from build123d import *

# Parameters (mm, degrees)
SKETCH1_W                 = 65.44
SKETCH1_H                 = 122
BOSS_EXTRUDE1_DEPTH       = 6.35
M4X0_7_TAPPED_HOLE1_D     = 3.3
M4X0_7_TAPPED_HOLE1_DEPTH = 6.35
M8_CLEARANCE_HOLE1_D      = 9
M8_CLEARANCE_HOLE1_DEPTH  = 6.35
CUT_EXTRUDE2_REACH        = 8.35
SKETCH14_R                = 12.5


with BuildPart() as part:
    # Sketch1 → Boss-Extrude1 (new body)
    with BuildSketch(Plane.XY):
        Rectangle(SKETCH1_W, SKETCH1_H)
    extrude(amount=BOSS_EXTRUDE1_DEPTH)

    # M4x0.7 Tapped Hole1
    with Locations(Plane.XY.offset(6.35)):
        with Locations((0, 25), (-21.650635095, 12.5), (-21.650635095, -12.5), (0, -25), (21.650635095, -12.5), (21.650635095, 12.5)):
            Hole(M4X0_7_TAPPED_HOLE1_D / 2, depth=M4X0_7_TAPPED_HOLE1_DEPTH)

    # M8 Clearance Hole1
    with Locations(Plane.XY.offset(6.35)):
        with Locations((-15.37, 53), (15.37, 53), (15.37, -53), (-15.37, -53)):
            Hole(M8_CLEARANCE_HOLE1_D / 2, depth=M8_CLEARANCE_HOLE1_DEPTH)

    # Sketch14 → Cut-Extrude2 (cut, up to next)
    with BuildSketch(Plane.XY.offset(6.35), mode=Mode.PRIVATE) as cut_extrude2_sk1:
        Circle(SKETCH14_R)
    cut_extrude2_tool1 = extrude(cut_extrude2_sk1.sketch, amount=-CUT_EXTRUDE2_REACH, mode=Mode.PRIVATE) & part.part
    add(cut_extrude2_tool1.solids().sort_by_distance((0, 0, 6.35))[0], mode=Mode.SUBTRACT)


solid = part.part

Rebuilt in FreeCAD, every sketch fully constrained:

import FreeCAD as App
import Part
import Sketcher


def add_polygon(sketch, points):
    """Adds a closed chain of lines whose ends are joined by coincident constraints."""
    first, n = sketch.GeometryCount, len(points)
    for a, b in zip(points, points[1:] + points[:1]):
        sketch.addGeometry(Part.LineSegment(App.Vector(*a, 0), App.Vector(*b, 0)), False)
    for i in range(n):
        sketch.addConstraint(Sketcher.Constraint("Coincident", first + i, 2, first + (i + 1) % n, 1))

doc = App.newDocument("Part")
params = doc.addObject("Spreadsheet::Sheet", "Params")
for row, (alias, value) in enumerate([
    ("sketch1_height", "122 mm"),
    ("sketch1_width", "65.44 mm"),
    ("pad1_length", "6.35 mm"),
    ("sketch2_diameter", "3.3 mm"),
    ("hole_diameter", "3.3 mm"),
    ("hole_depth", "6.35 mm"),
    ("sketch3_diameter", "9 mm"),
    ("hole2_diameter", "9 mm"),
    ("hole2_depth", "6.35 mm"),
    ("sketch4_diameter", "25 mm"),
], start=1):
    params.set(f"A{row}", alias)
    params.set(f"B{row}", "=" + value)
    params.setAlias(f"B{row}", alias)

body = doc.addObject("PartDesign::Body", "Body")

# Sketch on XY plane
sketch1 = body.newObject("Sketcher::SketchObject", "Sketch")
sketch1.AttachmentSupport = (doc.getObject("XY_Plane"), [""])
sketch1.MapMode = "FlatFace"
add_polygon(sketch1, [(-33, 61), (-33, -61), (33, -61), (33, 61)])  # lines 0-3
sketch1.addConstraint(Sketcher.Constraint("Vertical", 0))
sketch1.addConstraint(Sketcher.Constraint("Horizontal", 1))
sketch1.addConstraint(Sketcher.Constraint("Vertical", 2))
sketch1.addConstraint(Sketcher.Constraint("Horizontal", 3))
sketch1.addConstraint(Sketcher.Constraint("Symmetric", 0, 2, 2, 2, -1, 1))
sketch1.addConstraint(Sketcher.Constraint("DistanceY", 0, 2, 0, 1, 122.0))
sketch1.addConstraint(Sketcher.Constraint("DistanceX", 1, 1, 1, 2, 65.44))
sketch1.setExpression("Constraints[9]", "Params.sketch1_height")
sketch1.setExpression("Constraints[10]", "Params.sketch1_width")
pad1 = body.newObject("PartDesign::Pad", "Pad")
pad1.Profile = sketch1
pad1.setExpression("Length", "Params.pad1_length")

# Sketch on XY plane
sketch2 = body.newObject("Sketcher::SketchObject", "Sketch001")
sketch2.AttachmentSupport = (doc.getObject("XY_Plane"), [""])
sketch2.MapMode = "FlatFace"
sketch2.AttachmentOffset = App.Placement(App.Vector(0, 0, 6.35), App.Rotation())
sketch2.addGeometry(Part.Circle(App.Vector(0, 25, 0), App.Vector(0, 0, 1), 1.6), False)
sketch2.addGeometry(Part.Circle(App.Vector(-21.7, 12.5, 0), App.Vector(0, 0, 1), 1.6), False)
sketch2.addGeometry(Part.Circle(App.Vector(-21.7, -12.5, 0), App.Vector(0, 0, 1), 1.6), False)
sketch2.addGeometry(Part.Circle(App.Vector(0, -25, 0), App.Vector(0, 0, 1), 1.6), False)
sketch2.addGeometry(Part.Circle(App.Vector(21.7, -12.5, 0), App.Vector(0, 0, 1), 1.6), False)
sketch2.addGeometry(Part.Circle(App.Vector(21.7, 12.5, 0), App.Vector(0, 0, 1), 1.6), False)
sketch2.addConstraint(Sketcher.Constraint("Equal", 0, 1))
sketch2.addConstraint(Sketcher.Constraint("Equal", 1, 2))
sketch2.addConstraint(Sketcher.Constraint("Equal", 2, 3))
sketch2.addConstraint(Sketcher.Constraint("Equal", 3, 4))
sketch2.addConstraint(Sketcher.Constraint("Equal", 4, 5))
sketch2.addConstraint(Sketcher.Constraint("Symmetric", 0, 3, 3, 3, -1, 1))
sketch2.addConstraint(Sketcher.Constraint("Symmetric", 1, 3, 4, 3, -1, 1))
sketch2.addConstraint(Sketcher.Constraint("Symmetric", 2, 3, 5, 3, -1, 1))
sketch2.addConstraint(Sketcher.Constraint("Symmetric", 2, 3, 4, 3, -2))
sketch2.addConstraint(Sketcher.Constraint("PointOnObject", 0, 3, -2))
sketch2.addConstraint(Sketcher.Constraint("Diameter", 0, 3.3))
sketch2.addConstraint(Sketcher.Constraint("DistanceY", -1, 1, 0, 3, 25.0))
sketch2.addConstraint(Sketcher.Constraint("DistanceY", 2, 3, 1, 3, 25.0))
sketch2.addConstraint(Sketcher.Constraint("DistanceX", 2, 3, 4, 3, 43.30127))
sketch2.setExpression("Constraints[10]", "Params.sketch2_diameter")
doc.recompute()
hole = body.newObject("PartDesign::Hole", "Hole")
hole.Profile = sketch2
hole.ThreadType = "None"
hole.setExpression("Diameter", "Params.hole_diameter")
hole.DepthType = "Dimension"
hole.setExpression("Depth", "Params.hole_depth")
hole.DrillPoint = "Flat"

# Sketch on XY plane
sketch3 = body.newObject("Sketcher::SketchObject", "Sketch002")
sketch3.AttachmentSupport = (doc.getObject("XY_Plane"), [""])
sketch3.MapMode = "FlatFace"
sketch3.AttachmentOffset = App.Placement(App.Vector(0, 0, 6.35), App.Rotation())
sketch3.addGeometry(Part.Circle(App.Vector(-15.4, 53, 0), App.Vector(0, 0, 1), 4.5), False)
sketch3.addGeometry(Part.Circle(App.Vector(15.4, 53, 0), App.Vector(0, 0, 1), 4.5), False)
sketch3.addGeometry(Part.Circle(App.Vector(15.4, -53, 0), App.Vector(0, 0, 1), 4.5), False)
sketch3.addGeometry(Part.Circle(App.Vector(-15.4, -53, 0), App.Vector(0, 0, 1), 4.5), False)
sketch3.addConstraint(Sketcher.Constraint("Equal", 0, 1))
sketch3.addConstraint(Sketcher.Constraint("Equal", 1, 2))
sketch3.addConstraint(Sketcher.Constraint("Equal", 2, 3))
sketch3.addConstraint(Sketcher.Constraint("Symmetric", 0, 3, 2, 3, -1, 1))
sketch3.addConstraint(Sketcher.Constraint("Symmetric", 1, 3, 3, 3, -1, 1))
sketch3.addConstraint(Sketcher.Constraint("Symmetric", 0, 3, 1, 3, -2))
sketch3.addConstraint(Sketcher.Constraint("Diameter", 0, 9.0))
sketch3.addConstraint(Sketcher.Constraint("DistanceY", -1, 1, 0, 3, 53.0))
sketch3.addConstraint(Sketcher.Constraint("DistanceX", 0, 3, -1, 1, 15.37))
sketch3.setExpression("Constraints[6]", "Params.sketch3_diameter")
doc.recompute()
hole2 = body.newObject("PartDesign::Hole", "Hole001")
hole2.Profile = sketch3
hole2.ThreadType = "None"
hole2.setExpression("Diameter", "Params.hole2_diameter")
hole2.DepthType = "Dimension"
hole2.setExpression("Depth", "Params.hole2_depth")
hole2.DrillPoint = "Flat"

# Sketch on XY plane
sketch4 = body.newObject("Sketcher::SketchObject", "Sketch003")
sketch4.AttachmentSupport = (doc.getObject("XY_Plane"), [""])
sketch4.MapMode = "FlatFace"
sketch4.AttachmentOffset = App.Placement(App.Vector(0, 0, 6.35), App.Rotation())
sketch4.addGeometry(Part.Circle(App.Vector(0, 0, 0), App.Vector(0, 0, 1), 12), False)
sketch4.addConstraint(Sketcher.Constraint("Coincident", 0, 3, -1, 1))
sketch4.addConstraint(Sketcher.Constraint("Diameter", 0, 25.0))
sketch4.setExpression("Constraints[1]", "Params.sketch4_diameter")
pocket1 = body.newObject("PartDesign::Pocket", "Pocket")
pocket1.Profile = sketch4
pocket1.Type = "UpToFirst"

doc.recompute()
